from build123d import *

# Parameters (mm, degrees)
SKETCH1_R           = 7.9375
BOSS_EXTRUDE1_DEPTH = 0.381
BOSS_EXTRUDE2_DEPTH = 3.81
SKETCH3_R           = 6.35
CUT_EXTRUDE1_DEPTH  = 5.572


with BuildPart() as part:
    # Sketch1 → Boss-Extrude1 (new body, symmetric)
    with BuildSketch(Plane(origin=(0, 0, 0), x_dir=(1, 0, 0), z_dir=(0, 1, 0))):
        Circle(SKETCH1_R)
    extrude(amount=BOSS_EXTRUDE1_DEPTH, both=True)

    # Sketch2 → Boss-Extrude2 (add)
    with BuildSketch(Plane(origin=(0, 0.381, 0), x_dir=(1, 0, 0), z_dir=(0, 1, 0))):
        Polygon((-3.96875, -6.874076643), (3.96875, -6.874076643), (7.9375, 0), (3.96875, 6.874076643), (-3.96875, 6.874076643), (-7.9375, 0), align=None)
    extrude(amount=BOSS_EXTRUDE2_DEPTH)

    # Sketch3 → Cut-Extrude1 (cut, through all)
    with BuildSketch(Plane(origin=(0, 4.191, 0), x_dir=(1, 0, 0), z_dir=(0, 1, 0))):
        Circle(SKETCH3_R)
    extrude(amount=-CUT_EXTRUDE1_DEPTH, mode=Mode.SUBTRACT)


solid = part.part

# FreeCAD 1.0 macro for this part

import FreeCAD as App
import Part
import Sketcher

V = App.Vector
Q = App.Units.Quantity

doc = App.newDocument("Part")
body = doc.addObject("PartDesign::Body", "Body")

sketch1 = body.newObject("Sketcher::SketchObject", "Sketch")
sketch1.AttachmentSupport = (doc.getObject("XZ_Plane"), [""])
sketch1.MapMode = "FlatFace"
sketch1.addGeometry(Part.Circle(V(0, 0, 0), V(0, 0, 1), 8), False)
sketch1.addConstraint(Sketcher.Constraint("Coincident", 0, 3, -1, 1))
sketch1.addConstraint(Sketcher.Constraint("Diameter", 0, Q("0.625 in")))
pad1 = body.newObject("PartDesign::Pad", "Pad")
pad1.Profile = sketch1
pad1.Length = Q("0.03 in")
pad1.Midplane = True

sketch2 = body.newObject("Sketcher::SketchObject", "Sketch001")
sketch2.AttachmentSupport = (doc.getObject("XZ_Plane"), [""])
sketch2.MapMode = "FlatFace"
sketch2.AttachmentOffset = App.Placement(V(0, 0, -0.015 * 25.4), App.Rotation())
sketch2.addGeometry(Part.LineSegment(V(-4, 7, 0), V(4, 7, 0)), False)
sketch2.addGeometry(Part.LineSegment(V(4, 7, 0), V(8, 0, 0)), False)
sketch2.addGeometry(Part.LineSegment(V(8, 0, 0), V(4, -7, 0)), False)
sketch2.addGeometry(Part.LineSegment(V(4, -7, 0), V(-4, -7, 0)), False)
sketch2.addGeometry(Part.LineSegment(V(-4, -7, 0), V(-8, 0, 0)), False)
sketch2.addGeometry(Part.LineSegment(V(-8, 0, 0), V(-4, 7, 0)), False)
sketch2.addConstraint(Sketcher.Constraint("Coincident", 0, 2, 1, 1))
sketch2.addConstraint(Sketcher.Constraint("Coincident", 1, 2, 2, 1))
sketch2.addConstraint(Sketcher.Constraint("Coincident", 2, 2, 3, 1))
sketch2.addConstraint(Sketcher.Constraint("Coincident", 3, 2, 4, 1))
sketch2.addConstraint(Sketcher.Constraint("Coincident", 4, 2, 5, 1))
sketch2.addConstraint(Sketcher.Constraint("Coincident", 5, 2, 0, 1))
sketch2.addConstraint(Sketcher.Constraint("Horizontal", 0))
sketch2.addConstraint(Sketcher.Constraint("Horizontal", 3))
sketch2.addConstraint(Sketcher.Constraint("Symmetric", 0, 2, 3, 2, -1, 1))
sketch2.addConstraint(Sketcher.Constraint("Symmetric", 1, 2, 4, 2, -1, 1))
sketch2.addConstraint(Sketcher.Constraint("PointOnObject", 1, 2, -1))
sketch2.addConstraint(Sketcher.Constraint("Parallel", 2, 5))
sketch2.addConstraint(Sketcher.Constraint("Vertical", 0, 2, 2, 2))
sketch2.addConstraint(Sketcher.Constraint("Angle", 1, Q("-60 deg")))
sketch2.addConstraint(Sketcher.Constraint("DistanceX", 0, 1, 0, 2, Q("0.3125 in")))
sketch2.addConstraint(Sketcher.Constraint("Distance", 1, Q("0.3125 in")))
pad2 = body.newObject("PartDesign::Pad", "Pad001")
pad2.Profile = sketch2
pad2.Length = Q("0.15 in")
pad2.Reversed = True

sketch3 = body.newObject("Sketcher::SketchObject", "Sketch002")
sketch3.AttachmentSupport = (doc.getObject("XZ_Plane"), [""])
sketch3.MapMode = "FlatFace"
sketch3.AttachmentOffset = App.Placement(V(0, 0, -0.165 * 25.4), App.Rotation())
sketch3.addGeometry(Part.Circle(V(0, 0, 0), V(0, 0, 1), 6), False)
sketch3.addConstraint(Sketcher.Constraint("Coincident", 0, 3, -1, 1))
sketch3.addConstraint(Sketcher.Constraint("Diameter", 0, Q("0.5 in")))
pocket1 = body.newObject("PartDesign::Pocket", "Pocket")
pocket1.Profile = sketch3
pocket1.Type = "ThroughAll"
pocket1.Reversed = True

doc.recompute()
